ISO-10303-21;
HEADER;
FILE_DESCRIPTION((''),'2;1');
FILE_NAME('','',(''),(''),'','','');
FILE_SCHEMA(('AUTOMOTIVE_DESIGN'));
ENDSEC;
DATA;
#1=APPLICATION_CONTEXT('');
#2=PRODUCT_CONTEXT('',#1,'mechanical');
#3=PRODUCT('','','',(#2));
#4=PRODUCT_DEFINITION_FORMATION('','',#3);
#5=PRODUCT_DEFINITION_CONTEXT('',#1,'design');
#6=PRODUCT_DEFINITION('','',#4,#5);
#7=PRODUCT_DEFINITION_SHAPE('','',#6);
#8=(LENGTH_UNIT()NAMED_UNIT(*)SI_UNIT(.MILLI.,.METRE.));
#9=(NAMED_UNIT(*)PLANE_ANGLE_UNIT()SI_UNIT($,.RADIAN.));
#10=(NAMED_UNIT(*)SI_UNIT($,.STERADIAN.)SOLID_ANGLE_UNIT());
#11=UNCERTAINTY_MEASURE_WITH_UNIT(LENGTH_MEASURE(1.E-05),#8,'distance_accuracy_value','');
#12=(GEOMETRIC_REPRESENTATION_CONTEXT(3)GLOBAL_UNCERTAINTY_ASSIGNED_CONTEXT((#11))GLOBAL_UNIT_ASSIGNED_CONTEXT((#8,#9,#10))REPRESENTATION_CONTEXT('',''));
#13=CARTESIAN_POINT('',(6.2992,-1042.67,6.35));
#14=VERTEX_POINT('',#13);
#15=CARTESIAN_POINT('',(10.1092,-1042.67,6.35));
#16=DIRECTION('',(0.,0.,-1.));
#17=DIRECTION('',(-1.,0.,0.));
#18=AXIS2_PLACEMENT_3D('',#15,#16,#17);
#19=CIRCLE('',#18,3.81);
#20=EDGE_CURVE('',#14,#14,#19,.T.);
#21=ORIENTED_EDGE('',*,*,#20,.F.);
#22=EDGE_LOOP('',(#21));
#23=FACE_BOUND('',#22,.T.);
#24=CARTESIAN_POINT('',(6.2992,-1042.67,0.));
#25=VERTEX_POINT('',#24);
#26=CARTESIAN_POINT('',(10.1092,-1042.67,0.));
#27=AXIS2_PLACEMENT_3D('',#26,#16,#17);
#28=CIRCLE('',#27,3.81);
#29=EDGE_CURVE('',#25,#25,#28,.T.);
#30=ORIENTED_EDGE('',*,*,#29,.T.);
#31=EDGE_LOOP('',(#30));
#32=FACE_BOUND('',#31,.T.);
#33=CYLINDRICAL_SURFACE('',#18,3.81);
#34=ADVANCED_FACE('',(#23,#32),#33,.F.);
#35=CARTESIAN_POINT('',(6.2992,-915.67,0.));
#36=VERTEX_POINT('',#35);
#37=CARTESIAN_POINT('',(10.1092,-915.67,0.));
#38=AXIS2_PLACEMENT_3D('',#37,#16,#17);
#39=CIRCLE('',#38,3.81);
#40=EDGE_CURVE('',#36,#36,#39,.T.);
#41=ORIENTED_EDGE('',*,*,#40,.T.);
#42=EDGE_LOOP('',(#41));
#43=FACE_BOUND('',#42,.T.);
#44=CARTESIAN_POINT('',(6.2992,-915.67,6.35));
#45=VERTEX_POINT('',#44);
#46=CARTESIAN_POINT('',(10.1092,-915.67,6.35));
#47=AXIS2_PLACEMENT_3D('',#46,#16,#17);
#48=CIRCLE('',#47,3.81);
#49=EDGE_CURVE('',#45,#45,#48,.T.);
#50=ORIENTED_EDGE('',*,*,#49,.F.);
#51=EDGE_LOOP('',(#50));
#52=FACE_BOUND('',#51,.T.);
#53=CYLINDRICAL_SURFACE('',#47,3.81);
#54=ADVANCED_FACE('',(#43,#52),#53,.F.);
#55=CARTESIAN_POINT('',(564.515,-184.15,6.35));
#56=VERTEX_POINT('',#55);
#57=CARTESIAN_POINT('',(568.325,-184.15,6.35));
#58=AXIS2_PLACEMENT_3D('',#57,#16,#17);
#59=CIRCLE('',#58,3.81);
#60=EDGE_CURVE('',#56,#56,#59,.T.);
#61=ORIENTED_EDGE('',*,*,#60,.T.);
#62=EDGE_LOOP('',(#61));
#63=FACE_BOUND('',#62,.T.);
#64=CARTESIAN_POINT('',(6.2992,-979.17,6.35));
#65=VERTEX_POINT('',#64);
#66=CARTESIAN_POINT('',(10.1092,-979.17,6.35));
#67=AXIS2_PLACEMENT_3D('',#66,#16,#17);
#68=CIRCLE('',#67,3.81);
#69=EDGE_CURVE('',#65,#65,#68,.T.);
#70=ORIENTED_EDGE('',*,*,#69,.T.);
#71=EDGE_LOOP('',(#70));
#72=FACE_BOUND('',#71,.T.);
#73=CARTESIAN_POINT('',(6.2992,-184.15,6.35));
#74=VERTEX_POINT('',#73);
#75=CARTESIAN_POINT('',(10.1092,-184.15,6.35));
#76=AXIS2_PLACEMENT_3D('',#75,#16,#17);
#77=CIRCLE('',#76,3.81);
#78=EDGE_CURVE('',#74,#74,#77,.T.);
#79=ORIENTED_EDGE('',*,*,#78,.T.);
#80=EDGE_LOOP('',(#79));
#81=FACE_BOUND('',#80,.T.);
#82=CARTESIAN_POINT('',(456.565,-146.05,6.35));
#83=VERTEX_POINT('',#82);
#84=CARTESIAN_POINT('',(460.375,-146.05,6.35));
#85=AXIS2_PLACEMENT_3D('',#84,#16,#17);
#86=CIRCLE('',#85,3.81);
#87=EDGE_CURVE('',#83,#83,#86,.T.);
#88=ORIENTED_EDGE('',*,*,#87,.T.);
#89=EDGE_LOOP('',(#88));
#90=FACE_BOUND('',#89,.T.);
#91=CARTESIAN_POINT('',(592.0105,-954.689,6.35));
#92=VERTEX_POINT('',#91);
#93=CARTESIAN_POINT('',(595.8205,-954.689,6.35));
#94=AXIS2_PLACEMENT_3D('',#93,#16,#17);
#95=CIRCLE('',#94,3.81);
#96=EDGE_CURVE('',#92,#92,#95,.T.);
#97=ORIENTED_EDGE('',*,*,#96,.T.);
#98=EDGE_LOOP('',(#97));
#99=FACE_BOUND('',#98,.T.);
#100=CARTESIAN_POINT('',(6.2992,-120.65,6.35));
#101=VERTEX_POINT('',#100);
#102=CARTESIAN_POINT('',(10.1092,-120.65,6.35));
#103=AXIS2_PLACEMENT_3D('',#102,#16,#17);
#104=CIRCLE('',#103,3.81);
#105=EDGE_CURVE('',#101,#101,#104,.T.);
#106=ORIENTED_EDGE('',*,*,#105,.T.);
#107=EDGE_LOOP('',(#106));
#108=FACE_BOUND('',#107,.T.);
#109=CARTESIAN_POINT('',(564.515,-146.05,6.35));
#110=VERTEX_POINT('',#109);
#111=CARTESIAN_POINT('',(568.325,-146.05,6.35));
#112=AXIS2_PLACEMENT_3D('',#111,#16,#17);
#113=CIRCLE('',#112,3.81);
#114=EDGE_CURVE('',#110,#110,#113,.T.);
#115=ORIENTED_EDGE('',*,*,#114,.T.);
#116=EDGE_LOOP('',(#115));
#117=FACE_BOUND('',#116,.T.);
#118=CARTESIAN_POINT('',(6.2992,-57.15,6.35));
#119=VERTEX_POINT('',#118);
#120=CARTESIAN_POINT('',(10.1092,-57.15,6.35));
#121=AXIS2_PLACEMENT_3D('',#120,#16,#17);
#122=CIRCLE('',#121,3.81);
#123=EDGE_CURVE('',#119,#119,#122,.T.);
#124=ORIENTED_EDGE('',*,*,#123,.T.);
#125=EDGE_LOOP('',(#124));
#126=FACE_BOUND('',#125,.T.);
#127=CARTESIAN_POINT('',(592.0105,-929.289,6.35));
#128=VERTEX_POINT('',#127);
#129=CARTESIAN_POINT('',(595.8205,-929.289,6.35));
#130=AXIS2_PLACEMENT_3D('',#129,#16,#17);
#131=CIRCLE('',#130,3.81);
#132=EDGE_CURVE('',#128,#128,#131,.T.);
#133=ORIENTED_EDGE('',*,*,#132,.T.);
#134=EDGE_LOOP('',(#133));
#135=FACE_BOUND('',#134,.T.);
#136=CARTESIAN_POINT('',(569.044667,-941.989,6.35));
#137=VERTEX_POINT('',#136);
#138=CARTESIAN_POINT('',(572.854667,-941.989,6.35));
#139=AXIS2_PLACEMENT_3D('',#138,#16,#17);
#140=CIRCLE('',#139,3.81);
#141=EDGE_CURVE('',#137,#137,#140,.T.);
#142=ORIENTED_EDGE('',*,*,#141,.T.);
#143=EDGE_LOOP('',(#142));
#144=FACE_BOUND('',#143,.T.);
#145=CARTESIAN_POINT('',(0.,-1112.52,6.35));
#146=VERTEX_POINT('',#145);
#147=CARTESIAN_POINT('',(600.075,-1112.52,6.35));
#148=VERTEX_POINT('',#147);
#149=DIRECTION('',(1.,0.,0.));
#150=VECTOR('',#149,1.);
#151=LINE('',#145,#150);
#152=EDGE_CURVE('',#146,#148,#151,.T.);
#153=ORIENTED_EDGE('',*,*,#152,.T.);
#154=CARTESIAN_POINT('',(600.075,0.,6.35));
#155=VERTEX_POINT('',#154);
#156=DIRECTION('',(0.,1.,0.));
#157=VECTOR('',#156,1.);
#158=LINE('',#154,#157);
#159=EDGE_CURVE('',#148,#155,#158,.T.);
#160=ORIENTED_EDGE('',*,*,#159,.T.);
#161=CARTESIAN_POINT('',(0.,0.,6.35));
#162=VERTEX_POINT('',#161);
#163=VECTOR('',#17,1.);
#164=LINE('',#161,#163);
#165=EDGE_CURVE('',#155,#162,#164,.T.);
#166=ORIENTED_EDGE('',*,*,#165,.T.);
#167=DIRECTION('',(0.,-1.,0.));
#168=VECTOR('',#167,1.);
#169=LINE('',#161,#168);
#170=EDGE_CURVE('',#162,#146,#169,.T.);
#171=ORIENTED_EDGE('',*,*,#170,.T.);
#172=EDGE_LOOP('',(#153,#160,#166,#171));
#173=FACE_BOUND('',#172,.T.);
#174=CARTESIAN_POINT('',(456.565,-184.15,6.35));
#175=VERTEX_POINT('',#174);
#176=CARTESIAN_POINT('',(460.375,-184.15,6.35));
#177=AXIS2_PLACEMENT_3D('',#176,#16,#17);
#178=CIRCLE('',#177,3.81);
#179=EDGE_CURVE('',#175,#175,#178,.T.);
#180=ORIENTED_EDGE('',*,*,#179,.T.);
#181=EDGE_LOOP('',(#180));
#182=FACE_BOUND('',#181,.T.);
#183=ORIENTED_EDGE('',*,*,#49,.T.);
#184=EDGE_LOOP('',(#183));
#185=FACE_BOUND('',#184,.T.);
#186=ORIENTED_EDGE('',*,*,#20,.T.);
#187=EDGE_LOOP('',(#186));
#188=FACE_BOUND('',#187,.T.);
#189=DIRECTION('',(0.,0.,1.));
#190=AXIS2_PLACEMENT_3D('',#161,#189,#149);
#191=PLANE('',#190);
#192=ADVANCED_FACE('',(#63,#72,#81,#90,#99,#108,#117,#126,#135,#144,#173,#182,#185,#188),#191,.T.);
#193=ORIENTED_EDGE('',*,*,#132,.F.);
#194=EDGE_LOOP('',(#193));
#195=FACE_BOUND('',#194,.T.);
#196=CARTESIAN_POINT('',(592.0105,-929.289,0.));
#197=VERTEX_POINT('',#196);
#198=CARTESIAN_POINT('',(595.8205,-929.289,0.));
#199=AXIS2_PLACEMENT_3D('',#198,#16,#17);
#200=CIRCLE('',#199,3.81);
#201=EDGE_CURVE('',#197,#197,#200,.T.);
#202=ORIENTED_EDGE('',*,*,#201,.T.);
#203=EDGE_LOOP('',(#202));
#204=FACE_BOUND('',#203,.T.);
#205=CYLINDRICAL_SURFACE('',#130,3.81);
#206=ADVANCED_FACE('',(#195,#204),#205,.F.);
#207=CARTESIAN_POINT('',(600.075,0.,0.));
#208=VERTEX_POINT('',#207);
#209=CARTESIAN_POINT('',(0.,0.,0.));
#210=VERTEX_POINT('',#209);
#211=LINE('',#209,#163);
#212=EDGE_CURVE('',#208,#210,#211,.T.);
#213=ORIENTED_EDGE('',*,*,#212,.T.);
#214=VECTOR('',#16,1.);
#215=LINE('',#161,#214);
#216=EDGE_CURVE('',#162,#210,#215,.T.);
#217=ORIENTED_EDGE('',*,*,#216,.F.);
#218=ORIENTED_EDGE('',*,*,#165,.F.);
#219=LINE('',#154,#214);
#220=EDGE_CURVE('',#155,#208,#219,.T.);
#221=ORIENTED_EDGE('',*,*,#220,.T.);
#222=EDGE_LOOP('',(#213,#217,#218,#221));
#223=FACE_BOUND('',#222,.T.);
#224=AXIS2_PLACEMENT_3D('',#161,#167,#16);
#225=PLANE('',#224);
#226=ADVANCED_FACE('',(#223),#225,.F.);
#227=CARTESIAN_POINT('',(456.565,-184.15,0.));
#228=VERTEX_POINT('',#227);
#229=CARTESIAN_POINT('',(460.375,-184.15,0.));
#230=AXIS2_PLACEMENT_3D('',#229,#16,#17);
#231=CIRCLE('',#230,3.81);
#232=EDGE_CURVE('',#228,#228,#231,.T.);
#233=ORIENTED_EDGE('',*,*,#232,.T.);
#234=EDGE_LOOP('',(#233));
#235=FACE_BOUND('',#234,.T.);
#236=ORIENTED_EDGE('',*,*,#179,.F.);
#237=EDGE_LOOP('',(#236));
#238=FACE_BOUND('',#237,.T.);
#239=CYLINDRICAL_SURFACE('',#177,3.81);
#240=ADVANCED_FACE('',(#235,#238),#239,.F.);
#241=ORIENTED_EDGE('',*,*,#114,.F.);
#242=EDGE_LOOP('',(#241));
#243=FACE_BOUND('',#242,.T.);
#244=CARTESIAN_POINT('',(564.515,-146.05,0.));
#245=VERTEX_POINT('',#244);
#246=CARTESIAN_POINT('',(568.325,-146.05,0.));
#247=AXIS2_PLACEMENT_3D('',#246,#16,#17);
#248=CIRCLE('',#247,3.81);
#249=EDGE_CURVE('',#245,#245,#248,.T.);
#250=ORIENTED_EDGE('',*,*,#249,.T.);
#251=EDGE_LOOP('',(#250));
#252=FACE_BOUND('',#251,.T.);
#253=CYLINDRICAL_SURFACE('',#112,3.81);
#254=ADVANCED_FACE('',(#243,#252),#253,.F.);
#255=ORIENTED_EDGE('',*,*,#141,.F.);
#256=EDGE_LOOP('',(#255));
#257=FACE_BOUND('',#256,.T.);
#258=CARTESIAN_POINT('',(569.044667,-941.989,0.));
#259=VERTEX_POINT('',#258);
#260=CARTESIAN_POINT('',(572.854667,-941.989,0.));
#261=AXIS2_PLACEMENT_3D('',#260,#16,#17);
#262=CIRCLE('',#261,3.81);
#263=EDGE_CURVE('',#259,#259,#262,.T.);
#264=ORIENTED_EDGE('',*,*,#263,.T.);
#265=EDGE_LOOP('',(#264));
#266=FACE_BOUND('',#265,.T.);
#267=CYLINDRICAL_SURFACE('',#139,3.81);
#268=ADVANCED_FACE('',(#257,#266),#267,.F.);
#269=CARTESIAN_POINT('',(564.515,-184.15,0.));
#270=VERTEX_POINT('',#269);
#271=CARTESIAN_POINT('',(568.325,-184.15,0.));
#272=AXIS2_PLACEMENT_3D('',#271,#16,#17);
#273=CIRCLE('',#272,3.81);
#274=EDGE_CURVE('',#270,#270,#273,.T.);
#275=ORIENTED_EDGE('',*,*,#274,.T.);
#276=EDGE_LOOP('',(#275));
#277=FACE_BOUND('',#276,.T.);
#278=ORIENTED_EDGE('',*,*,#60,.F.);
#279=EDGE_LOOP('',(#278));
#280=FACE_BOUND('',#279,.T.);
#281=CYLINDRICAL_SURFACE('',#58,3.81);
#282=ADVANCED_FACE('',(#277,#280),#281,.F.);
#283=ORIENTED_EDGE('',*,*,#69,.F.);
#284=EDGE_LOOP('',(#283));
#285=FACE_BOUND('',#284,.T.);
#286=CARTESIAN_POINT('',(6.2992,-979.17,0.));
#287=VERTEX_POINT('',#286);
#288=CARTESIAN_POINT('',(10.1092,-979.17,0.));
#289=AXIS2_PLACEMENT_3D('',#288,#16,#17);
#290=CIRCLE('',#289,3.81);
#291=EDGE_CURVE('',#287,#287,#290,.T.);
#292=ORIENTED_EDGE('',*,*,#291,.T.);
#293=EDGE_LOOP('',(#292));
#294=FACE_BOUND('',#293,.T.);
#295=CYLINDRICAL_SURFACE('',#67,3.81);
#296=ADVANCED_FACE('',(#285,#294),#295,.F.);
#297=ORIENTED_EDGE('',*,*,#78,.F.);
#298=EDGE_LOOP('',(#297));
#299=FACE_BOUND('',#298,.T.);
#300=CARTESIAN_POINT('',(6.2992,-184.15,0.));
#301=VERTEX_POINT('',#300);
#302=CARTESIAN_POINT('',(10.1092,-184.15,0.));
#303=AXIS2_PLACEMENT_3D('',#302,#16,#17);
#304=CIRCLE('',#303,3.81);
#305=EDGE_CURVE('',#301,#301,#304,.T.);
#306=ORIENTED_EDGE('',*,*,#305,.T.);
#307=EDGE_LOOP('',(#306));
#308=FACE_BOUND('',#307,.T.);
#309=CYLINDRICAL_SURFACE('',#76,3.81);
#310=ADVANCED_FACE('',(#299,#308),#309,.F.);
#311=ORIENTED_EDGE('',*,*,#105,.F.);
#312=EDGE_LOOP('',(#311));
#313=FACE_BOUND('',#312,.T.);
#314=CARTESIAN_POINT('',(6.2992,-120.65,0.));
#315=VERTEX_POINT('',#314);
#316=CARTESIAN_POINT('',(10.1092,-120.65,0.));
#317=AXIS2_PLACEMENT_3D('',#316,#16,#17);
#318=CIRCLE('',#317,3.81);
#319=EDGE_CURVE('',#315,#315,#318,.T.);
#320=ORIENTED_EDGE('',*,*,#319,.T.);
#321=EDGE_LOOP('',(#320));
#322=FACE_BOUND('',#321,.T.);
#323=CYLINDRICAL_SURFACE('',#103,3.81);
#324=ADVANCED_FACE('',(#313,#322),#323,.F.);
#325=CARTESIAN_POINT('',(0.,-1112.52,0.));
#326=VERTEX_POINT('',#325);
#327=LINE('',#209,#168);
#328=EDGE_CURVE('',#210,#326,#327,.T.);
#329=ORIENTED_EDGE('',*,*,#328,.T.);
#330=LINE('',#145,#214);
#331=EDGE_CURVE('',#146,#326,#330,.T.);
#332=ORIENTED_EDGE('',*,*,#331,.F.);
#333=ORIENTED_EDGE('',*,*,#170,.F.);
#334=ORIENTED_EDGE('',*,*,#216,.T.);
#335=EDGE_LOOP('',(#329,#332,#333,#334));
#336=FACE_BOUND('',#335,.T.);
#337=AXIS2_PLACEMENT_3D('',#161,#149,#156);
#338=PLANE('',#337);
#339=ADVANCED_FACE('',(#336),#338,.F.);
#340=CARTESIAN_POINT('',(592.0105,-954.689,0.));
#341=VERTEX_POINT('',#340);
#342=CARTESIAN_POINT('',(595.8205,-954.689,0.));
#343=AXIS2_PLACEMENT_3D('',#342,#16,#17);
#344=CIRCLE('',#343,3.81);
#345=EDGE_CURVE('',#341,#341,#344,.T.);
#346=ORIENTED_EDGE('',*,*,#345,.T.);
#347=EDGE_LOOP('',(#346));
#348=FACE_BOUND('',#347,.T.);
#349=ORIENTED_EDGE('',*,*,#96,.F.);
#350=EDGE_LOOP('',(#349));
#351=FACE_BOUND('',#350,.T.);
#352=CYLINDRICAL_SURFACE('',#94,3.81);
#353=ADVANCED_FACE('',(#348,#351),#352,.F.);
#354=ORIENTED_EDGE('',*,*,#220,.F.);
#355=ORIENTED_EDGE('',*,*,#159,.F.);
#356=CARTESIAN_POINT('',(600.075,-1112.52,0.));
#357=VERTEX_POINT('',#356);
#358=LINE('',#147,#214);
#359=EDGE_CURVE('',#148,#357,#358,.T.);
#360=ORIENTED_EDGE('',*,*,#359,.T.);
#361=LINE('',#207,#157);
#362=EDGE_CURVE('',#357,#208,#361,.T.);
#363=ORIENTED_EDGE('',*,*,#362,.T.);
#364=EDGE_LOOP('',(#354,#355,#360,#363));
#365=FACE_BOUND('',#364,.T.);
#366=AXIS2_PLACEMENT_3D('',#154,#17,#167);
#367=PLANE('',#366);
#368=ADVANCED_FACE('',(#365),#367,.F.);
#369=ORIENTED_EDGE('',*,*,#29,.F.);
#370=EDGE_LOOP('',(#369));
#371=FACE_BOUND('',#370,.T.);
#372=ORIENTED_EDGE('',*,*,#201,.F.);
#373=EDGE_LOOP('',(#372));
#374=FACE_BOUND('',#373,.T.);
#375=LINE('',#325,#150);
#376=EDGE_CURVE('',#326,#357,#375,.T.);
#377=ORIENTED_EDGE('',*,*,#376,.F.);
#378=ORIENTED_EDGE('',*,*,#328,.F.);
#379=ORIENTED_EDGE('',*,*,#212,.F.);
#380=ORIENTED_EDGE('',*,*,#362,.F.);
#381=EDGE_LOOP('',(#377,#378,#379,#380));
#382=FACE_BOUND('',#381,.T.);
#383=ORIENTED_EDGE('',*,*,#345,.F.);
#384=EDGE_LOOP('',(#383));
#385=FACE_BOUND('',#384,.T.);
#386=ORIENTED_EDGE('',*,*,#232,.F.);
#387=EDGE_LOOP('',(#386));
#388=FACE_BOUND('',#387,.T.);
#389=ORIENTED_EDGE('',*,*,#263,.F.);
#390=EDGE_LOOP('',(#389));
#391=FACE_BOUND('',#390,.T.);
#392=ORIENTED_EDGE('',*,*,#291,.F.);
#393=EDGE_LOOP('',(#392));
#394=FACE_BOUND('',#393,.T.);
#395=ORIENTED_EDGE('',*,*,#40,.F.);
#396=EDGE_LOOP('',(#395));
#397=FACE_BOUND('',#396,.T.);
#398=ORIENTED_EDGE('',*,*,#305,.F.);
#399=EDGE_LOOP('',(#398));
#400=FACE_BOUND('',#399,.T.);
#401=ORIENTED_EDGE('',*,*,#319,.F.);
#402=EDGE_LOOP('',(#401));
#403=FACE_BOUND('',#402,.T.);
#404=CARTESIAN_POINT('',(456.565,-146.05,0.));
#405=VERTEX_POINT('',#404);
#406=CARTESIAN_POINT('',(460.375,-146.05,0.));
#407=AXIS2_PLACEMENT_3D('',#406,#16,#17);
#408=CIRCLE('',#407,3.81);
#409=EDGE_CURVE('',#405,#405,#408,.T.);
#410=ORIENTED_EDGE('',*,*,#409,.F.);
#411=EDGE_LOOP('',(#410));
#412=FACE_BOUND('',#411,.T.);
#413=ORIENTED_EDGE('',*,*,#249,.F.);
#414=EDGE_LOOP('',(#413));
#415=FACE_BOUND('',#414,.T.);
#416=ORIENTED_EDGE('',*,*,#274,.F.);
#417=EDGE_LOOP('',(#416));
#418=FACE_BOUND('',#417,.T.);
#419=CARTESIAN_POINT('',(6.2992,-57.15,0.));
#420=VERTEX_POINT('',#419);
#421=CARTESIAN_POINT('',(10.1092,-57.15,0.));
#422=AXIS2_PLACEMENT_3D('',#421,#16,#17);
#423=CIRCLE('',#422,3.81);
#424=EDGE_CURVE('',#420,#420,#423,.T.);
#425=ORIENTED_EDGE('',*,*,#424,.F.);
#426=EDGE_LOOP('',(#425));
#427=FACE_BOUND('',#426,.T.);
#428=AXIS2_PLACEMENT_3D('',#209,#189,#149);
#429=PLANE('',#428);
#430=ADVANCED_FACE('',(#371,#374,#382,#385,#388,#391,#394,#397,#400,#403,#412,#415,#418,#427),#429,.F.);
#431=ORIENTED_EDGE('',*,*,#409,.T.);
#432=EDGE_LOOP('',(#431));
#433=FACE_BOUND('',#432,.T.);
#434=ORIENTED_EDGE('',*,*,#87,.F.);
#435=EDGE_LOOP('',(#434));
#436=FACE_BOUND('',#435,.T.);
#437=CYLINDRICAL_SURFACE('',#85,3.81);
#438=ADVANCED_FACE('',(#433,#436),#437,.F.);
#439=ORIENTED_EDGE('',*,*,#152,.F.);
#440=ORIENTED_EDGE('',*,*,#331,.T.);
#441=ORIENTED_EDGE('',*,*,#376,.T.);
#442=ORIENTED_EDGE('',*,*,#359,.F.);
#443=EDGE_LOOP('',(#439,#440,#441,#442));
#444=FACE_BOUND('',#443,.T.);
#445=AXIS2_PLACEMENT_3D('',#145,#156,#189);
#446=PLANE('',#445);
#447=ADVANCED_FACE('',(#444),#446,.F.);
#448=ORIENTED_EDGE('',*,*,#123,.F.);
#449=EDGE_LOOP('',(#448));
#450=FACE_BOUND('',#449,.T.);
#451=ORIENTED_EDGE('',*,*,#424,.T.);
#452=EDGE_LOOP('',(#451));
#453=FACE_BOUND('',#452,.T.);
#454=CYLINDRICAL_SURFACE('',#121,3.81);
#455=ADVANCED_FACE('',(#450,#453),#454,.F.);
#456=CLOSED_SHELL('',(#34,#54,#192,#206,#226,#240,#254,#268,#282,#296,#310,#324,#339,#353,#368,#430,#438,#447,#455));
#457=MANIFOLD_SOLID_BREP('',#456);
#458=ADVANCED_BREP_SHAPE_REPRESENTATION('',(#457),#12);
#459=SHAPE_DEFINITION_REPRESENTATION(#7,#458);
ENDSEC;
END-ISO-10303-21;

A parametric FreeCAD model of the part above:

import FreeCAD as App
import Part
import Sketcher
from FreeCAD import Vector
Q = App.Units.Quantity


def add_polygon(sketch, points):
    """Adds a closed chain of lines whose ends are joined by coincident constraints."""
    first, n = sketch.GeometryCount, len(points)
    for a, b in zip(points, points[1:] + points[:1]):
        sketch.addGeometry(Part.LineSegment(App.Vector(*a, 0), App.Vector(*b, 0)), False)
    for i in range(n):
        sketch.addConstraint(Sketcher.Constraint("Coincident", first + i, 2, first + (i + 1) % n, 1))

doc = App.newDocument("Part")
body = doc.addObject("PartDesign::Body", "Body")

sketch1 = doc.addObject("Sketcher::SketchObject", "Sketch")
body.addObject(sketch1)
sketch1.AttachmentSupport = (doc.XY_Plane, [""])
sketch1.MapMode = "FlatFace"
add_polygon(sketch1, [(0, 0), (0, -1113), (600, -1113), (600, 0)])
sketch1.addConstraint(Sketcher.Constraint("Vertical", 0))
sketch1.addConstraint(Sketcher.Constraint("Horizontal", 1))
sketch1.addConstraint(Sketcher.Constraint("Vertical", 2))
sketch1.addConstraint(Sketcher.Constraint("Horizontal", 3))
sketch1.addConstraint(Sketcher.Constraint("Coincident", 3, 2, -1, 1))
sketch1.addConstraint(Sketcher.Constraint("DistanceY", 0, 2, 0, 1, Q("43.8 in")))
sketch1.addConstraint(Sketcher.Constraint("DistanceX", 1, 1, 1, 2, Q("23.625 in")))
pad1 = doc.addObject("PartDesign::Pad", "Pad")
body.addObject(pad1)
pad1.Profile = sketch1
pad1.Length = Q("0.25 in")

sketch2 = doc.addObject("Sketcher::SketchObject", "Sketch001")
body.addObject(sketch2)
sketch2.AttachmentSupport = (doc.XY_Plane, [""])
sketch2.MapMode = "FlatFace"
sketch2.addGeometry(Part.Circle(Vector(10.1, -57.1, 0), Vector(0, 0, 1), 3.8), False)
sketch2.addGeometry(Part.Circle(Vector(10.1, -120.7, 0), Vector(0, 0, 1), 3.8), False)
sketch2.addGeometry(Part.Circle(Vector(10.1, -184.2, 0), Vector(0, 0, 1), 3.8), False)
sketch2.addGeometry(Part.Circle(Vector(10.1, -915.7, 0), Vector(0, 0, 1), 3.8), False)
sketch2.addGeometry(Part.Circle(Vector(10.1, -979.2, 0), Vector(0, 0, 1), 3.8), False)
sketch2.addGeometry(Part.Circle(Vector(10.1, -1042.7, 0), Vector(0, 0, 1), 3.8), False)
sketch2.addGeometry(Part.Circle(Vector(595.8, -929.3, 0), Vector(0, 0, 1), 3.8), False)
sketch2.addGeometry(Part.Circle(Vector(595.8, -954.7, 0), Vector(0, 0, 1), 3.8), False)
sketch2.addGeometry(Part.Circle(Vector(572.9, -942, 0), Vector(0, 0, 1), 3.8), False)
sketch2.addGeometry(Part.Circle(Vector(568.3, -146.1, 0), Vector(0, 0, 1), 3.8), False)
sketch2.addGeometry(Part.Circle(Vector(460.4, -146.1, 0), Vector(0, 0, 1), 3.8), False)
sketch2.addGeometry(Part.Circle(Vector(460.4, -184.2, 0), Vector(0, 0, 1), 3.8), False)
sketch2.addGeometry(Part.Circle(Vector(568.3, -184.2, 0), Vector(0, 0, 1), 3.8), False)
sketch2.addConstraint(Sketcher.Constraint("Equal", 0, 1))
sketch2.addConstraint(Sketcher.Constraint("Equal", 1, 2))
sketch2.addConstraint(Sketcher.Constraint("Equal", 2, 3))
sketch2.addConstraint(Sketcher.Constraint("Equal", 3, 4))
sketch2.addConstraint(Sketcher.Constraint("Equal", 4, 5))
sketch2.addConstraint(Sketcher.Constraint("Equal", 5, 6))
sketch2.addConstraint(Sketcher.Constraint("Equal", 6, 7))
sketch2.addConstraint(Sketcher.Constraint("Equal", 7, 8))
sketch2.addConstraint(Sketcher.Constraint("Equal", 8, 9))
sketch2.addConstraint(Sketcher.Constraint("Equal", 9, 10))
sketch2.addConstraint(Sketcher.Constraint("Equal", 10, 11))
sketch2.addConstraint(Sketcher.Constraint("Equal", 11, 12))
sketch2.addConstraint(Sketcher.Constraint("Horizontal", 9, 3, 10, 3))
sketch2.addConstraint(Sketcher.Constraint("Horizontal", 2, 3, 11, 3))
sketch2.addConstraint(Sketcher.Constraint("Horizontal", 11, 3, 12, 3))
sketch2.addConstraint(Sketcher.Constraint("Vertical", 0, 3, 1, 3))
sketch2.addConstraint(Sketcher.Constraint("Vertical", 1, 3, 2, 3))
sketch2.addConstraint(Sketcher.Constraint("Vertical", 2, 3, 3, 3))
sketch2.addConstraint(Sketcher.Constraint("Vertical", 3, 3, 4, 3))
sketch2.addConstraint(Sketcher.Constraint("Vertical", 4, 3, 5, 3))
sketch2.addConstraint(Sketcher.Constraint("Vertical", 6, 3, 7, 3))
sketch2.addConstraint(Sketcher.Constraint("Vertical", 10, 3, 11, 3))
sketch2.addConstraint(Sketcher.Constraint("Vertical", 9, 3, 12, 3))
sketch2.addConstraint(Sketcher.Constraint("Diameter", 0, Q("0.3 in")))
sketch2.addConstraint(Sketcher.Constraint("DistanceY", 2, 3, 0, 3, Q("5 in")))
sketch2.addConstraint(Sketcher.Constraint("DistanceY", 5, 3, 3, 3, Q("5 in")))
sketch2.addConstraint(Sketcher.Constraint("DistanceY", 7, 3, 6, 3, Q("1 in")))
sketch2.addConstraint(Sketcher.Constraint("DistanceY", 9, 3, 1, 3, Q("1 in")))
sketch2.addConstraint(Sketcher.Constraint("DistanceY", 1, 3, 0, 3, Q("2.5 in")))
sketch2.addConstraint(Sketcher.Constraint("DistanceY", 3, 3, 2, 3, Q("28.8 in")))
sketch2.addConstraint(Sketcher.Constraint("DistanceY", 4, 3, 3, 3, Q("2.5 in")))
sketch2.addConstraint(Sketcher.Constraint("DistanceY", 8, 3, 6, 3, Q("0.5 in")))
sketch2.addConstraint(Sketcher.Constraint("DistanceY", 0, 3, -1, 1, Q("2.25 in")))
sketch2.addConstraint(Sketcher.Constraint("DistanceX", 10, 3, 9, 3, Q("4.25 in")))
sketch2.addConstraint(Sketcher.Constraint("DistanceX", -1, 1, 0, 3, Q("0.398 in")))
sketch2.addConstraint(Sketcher.Constraint("DistanceX", -1, 1, 9, 3, Q("22.375 in")))
sketch2.addConstraint(Sketcher.Constraint("DistanceX", -1, 1, 6, 3, Q("23.4575 in")))
sketch2.addConstraint(Sketcher.Constraint("DistanceY", 6, 3, -1, 1, Q("929.289 mm")))
sketch2.addConstraint(Sketcher.Constraint("DistanceX", -1, 1, 8, 3, Q("572.854667 mm")))
pocket1 = doc.addObject("PartDesign::Pocket", "Pocket")
body.addObject(pocket1)
pocket1.Profile = sketch2
pocket1.Type = "ThroughAll"
pocket1.Reversed = True

doc.recompute()
